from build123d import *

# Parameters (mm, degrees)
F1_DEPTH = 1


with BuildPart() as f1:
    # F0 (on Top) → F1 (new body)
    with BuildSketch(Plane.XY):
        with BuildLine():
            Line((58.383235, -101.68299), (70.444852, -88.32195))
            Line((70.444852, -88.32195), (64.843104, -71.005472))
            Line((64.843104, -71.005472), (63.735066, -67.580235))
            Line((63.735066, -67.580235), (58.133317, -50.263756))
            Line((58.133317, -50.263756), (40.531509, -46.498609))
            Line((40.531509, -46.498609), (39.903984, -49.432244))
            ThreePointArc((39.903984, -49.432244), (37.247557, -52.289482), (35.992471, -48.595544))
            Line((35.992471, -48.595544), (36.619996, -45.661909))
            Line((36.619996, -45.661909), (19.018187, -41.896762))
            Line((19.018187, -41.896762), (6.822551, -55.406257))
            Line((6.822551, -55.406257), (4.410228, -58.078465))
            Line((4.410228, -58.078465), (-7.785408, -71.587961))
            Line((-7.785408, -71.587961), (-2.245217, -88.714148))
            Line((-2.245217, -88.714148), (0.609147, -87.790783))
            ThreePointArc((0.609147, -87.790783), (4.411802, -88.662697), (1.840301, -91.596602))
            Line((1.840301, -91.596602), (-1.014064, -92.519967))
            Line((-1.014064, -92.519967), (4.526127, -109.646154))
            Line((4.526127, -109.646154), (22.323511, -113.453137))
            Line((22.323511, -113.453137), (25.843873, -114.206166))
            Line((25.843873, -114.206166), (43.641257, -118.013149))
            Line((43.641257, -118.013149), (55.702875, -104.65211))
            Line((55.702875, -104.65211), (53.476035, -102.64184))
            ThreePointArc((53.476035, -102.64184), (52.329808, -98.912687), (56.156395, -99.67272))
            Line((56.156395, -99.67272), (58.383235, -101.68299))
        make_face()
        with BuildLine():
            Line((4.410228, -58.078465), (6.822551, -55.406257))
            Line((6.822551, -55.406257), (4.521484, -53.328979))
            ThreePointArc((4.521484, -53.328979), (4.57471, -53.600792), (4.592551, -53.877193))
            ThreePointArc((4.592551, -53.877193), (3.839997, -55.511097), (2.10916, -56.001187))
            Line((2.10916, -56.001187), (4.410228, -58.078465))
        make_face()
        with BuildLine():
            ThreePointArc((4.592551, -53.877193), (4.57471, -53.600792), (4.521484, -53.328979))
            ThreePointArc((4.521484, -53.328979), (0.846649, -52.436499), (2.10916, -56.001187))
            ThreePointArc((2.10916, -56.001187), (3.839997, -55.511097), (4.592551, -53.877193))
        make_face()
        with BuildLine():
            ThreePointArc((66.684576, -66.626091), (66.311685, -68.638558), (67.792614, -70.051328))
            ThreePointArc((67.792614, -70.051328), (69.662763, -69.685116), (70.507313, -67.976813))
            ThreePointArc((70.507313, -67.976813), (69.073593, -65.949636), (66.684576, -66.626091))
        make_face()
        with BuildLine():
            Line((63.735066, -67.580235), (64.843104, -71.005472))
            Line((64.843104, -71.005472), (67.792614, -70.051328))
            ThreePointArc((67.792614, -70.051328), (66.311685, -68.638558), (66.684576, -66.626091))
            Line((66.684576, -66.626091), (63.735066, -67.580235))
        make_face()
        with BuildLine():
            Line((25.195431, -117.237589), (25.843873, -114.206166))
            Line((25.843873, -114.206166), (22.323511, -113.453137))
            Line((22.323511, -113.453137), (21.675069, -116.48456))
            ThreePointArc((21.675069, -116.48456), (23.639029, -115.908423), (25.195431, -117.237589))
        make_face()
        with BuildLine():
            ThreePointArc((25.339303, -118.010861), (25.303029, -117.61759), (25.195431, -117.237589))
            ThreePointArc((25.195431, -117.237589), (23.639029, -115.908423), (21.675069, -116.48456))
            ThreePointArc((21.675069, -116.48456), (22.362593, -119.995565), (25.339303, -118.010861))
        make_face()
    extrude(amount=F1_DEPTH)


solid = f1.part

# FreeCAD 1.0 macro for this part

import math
import FreeCAD as App
import Part
import Sketcher

V = App.Vector

doc = App.newDocument("Part")
body = doc.addObject("PartDesign::Body", "Body")

sketch1 = body.newObject("Sketcher::SketchObject", "Sketch")
sketch1.AttachmentSupport = (doc.getObject("XY_Plane"), [""])
sketch1.MapMode = "FlatFace"
sketch1.addGeometry([
    Part.LineSegment(V(58.4, -101.7, 0), V(70.4, -88.3, 0)),
    Part.LineSegment(V(70.4, -88.3, 0), V(64.8, -71, 0)),
    Part.LineSegment(V(64.8, -71, 0), V(67.8, -70.1, 0)),
    Part.ArcOfCircle(Part.Circle(V(68.4, -68, 0), V(0, 0, 1), 2.1), math.radians(-105), math.radians(0)),
    Part.ArcOfCircle(Part.Circle(V(68.4, -68, 0), V(0, 0, 1), 2.1), math.radians(0), math.radians(141)),
    Part.LineSegment(V(66.7, -66.6, 0), V(63.7, -67.6, 0)),
    Part.LineSegment(V(63.7, -67.6, 0), V(58.1, -50.3, 0)),
    Part.LineSegment(V(58.1, -50.3, 0), V(40.5, -46.5, 0)),
    Part.LineSegment(V(40.5, -46.5, 0), V(39.9, -49.4, 0)),
    Part.ArcOfCircle(Part.Circle(V(37.7, -50.1, 0), V(0, 0, 1), 2.3), math.radians(140), math.radians(376)),
    Part.LineSegment(V(36, -48.6, 0), V(36.6, -45.7, 0)),
    Part.LineSegment(V(36.6, -45.7, 0), V(19, -41.9, 0)),
    Part.LineSegment(V(19, -41.9, 0), V(6.8, -55.4, 0)),
    Part.LineSegment(V(6.8, -55.4, 0), V(4.5, -53.3, 0)),
    Part.ArcOfCircle(Part.Circle(V(2.4, -53.9, 0), V(0, 0, 1), 2.2), math.radians(15), math.radians(261)),
    Part.LineSegment(V(2.1, -56, 0), V(4.4, -58.1, 0)),
    Part.LineSegment(V(4.4, -58.1, 0), V(-7.8, -71.6, 0)),
    Part.LineSegment(V(-7.8, -71.6, 0), V(-2.2, -88.7, 0)),
    Part.LineSegment(V(-2.2, -88.7, 0), V(0.6, -87.8, 0)),
    Part.ArcOfCircle(Part.Circle(V(2.3, -89.4, 0), V(0, 0, 1), 2.3), math.radians(-100), math.radians(136)),
    Part.LineSegment(V(1.8, -91.6, 0), V(-1, -92.5, 0)),
    Part.LineSegment(V(-1, -92.5, 0), V(4.5, -109.6, 0)),
    Part.LineSegment(V(4.5, -109.6, 0), V(22.3, -113.5, 0)),
    Part.LineSegment(V(22.3, -113.5, 0), V(21.7, -116.5, 0)),
    Part.ArcOfCircle(Part.Circle(V(23.2, -118, 0), V(0, 0, 1), 2.1), math.radians(135), math.radians(360)),
    Part.ArcOfCircle(Part.Circle(V(23.2, -118, 0), V(0, 0, 1), 2.1), math.radians(0), math.radians(21)),
    Part.LineSegment(V(25.2, -117.2, 0), V(25.8, -114.2, 0)),
    Part.LineSegment(V(25.8, -114.2, 0), V(43.6, -118, 0)),
    Part.LineSegment(V(43.6, -118, 0), V(55.7, -104.7, 0)),
    Part.LineSegment(V(55.7, -104.7, 0), V(53.5, -102.6, 0)),
    Part.ArcOfCircle(Part.Circle(V(54, -100.4, 0), V(0, 0, 1), 2.3), math.radians(20), math.radians(256)),
    Part.LineSegment(V(56.2, -99.7, 0), V(58.4, -101.7, 0)),
], False)
sketch1.addConstraint([
    Sketcher.Constraint("Coincident", 0, 2, 1, 1),
    Sketcher.Constraint("Coincident", 1, 2, 2, 1),
    Sketcher.Constraint("Coincident", 2, 2, 3, 1),
    Sketcher.Constraint("Tangent", 3, 2, 4, 1),
    Sketcher.Constraint("Coincident", 4, 2, 5, 1),
    Sketcher.Constraint("Coincident", 5, 2, 6, 1),
    Sketcher.Constraint("Coincident", 6, 2, 7, 1),
    Sketcher.Constraint("Coincident", 7, 2, 8, 1),
    Sketcher.Constraint("Coincident", 8, 2, 9, 2),
    Sketcher.Constraint("Coincident", 9, 1, 10, 1),
    Sketcher.Constraint("Coincident", 10, 2, 11, 1),
    Sketcher.Constraint("Coincident", 11, 2, 12, 1),
    Sketcher.Constraint("Coincident", 12, 2, 13, 1),
    Sketcher.Constraint("Coincident", 13, 2, 14, 1),
    Sketcher.Constraint("Coincident", 14, 2, 15, 1),
    Sketcher.Constraint("Coincident", 15, 2, 16, 1),
    Sketcher.Constraint("Coincident", 16, 2, 17, 1),
    Sketcher.Constraint("Coincident", 17, 2, 18, 1),
    Sketcher.Constraint("Coincident", 18, 2, 19, 2),
    Sketcher.Constraint("Coincident", 19, 1, 20, 1),
    Sketcher.Constraint("Coincident", 20, 2, 21, 1),
    Sketcher.Constraint("Coincident", 21, 2, 22, 1),
    Sketcher.Constraint("Coincident", 22, 2, 23, 1),
    Sketcher.Constraint("Coincident", 23, 2, 24, 1),
    Sketcher.Constraint("Tangent", 24, 2, 25, 1),
    Sketcher.Constraint("Coincident", 25, 2, 26, 1),
    Sketcher.Constraint("Coincident", 26, 2, 27, 1),
    Sketcher.Constraint("Coincident", 27, 2, 28, 1),
    Sketcher.Constraint("Coincident", 28, 2, 29, 1),
    Sketcher.Constraint("Coincident", 29, 2, 30, 2),
    Sketcher.Constraint("Coincident", 30, 1, 31, 1),
    Sketcher.Constraint("Coincident", 31, 2, 0, 1),
    Sketcher.Constraint("Equal", 3, 4),
    Sketcher.Constraint("Equal", 4, 14),
    Sketcher.Constraint("Equal", 9, 19),
    Sketcher.Constraint("Equal", 14, 24),
    Sketcher.Constraint("Equal", 24, 25),
    Sketcher.Constraint("Equal", 19, 30),
    Sketcher.Constraint("Perpendicular", 1, 2),
    Sketcher.Constraint("Parallel", 2, 5),
    Sketcher.Constraint("Perpendicular", 5, 6),
    Sketcher.Constraint("Perpendicular", 7, 8),
    Sketcher.Constraint("Parallel", 8, 10),
    Sketcher.Constraint("Perpendicular", 10, 11),
    Sketcher.Constraint("Parallel", 0, 12),
    Sketcher.Constraint("Perpendicular", 12, 13),
    Sketcher.Constraint("Parallel", 13, 15),
    Sketcher.Constraint("Perpendicular", 15, 16),
    Sketcher.Constraint("Parallel", 6, 17),
    Sketcher.Constraint("Perpendicular", 17, 18),
    Sketcher.Constraint("Parallel", 18, 20),
    Sketcher.Constraint("Perpendicular", 20, 21),
    Sketcher.Constraint("Parallel", 11, 22),
    Sketcher.Constraint("Perpendicular", 22, 23),
    Sketcher.Constraint("Parallel", 23, 26),
    Sketcher.Constraint("Perpendicular", 26, 27),
    Sketcher.Constraint("Parallel", 16, 28),
    Sketcher.Constraint("Perpendicular", 28, 29),
    Sketcher.Constraint("Parallel", 29, 31),
    Sketcher.Constraint("Horizontal", 4, 3, 3, 2),
    Sketcher.Constraint("Horizontal", 25, 3, 24, 2),
    Sketcher.Constraint("Equal", 2, 5),
    Sketcher.Constraint("Equal", 1, 6),
    Sketcher.Constraint("Equal", 0, 7),
    Sketcher.Constraint("Equal", 8, 10),
    Sketcher.Constraint("Equal", 7, 11),
    Sketcher.Constraint("Equal", 6, 12),
    Sketcher.Constraint("Equal", 5, 13),
    Sketcher.Constraint("Equal", 13, 15),
    Sketcher.Constraint("Equal", 12, 16),
    Sketcher.Constraint("Equal", 11, 17),
    Sketcher.Constraint("Equal", 10, 18),
    Sketcher.Constraint("Equal", 18, 20),
    Sketcher.Constraint("Equal", 17, 21),
    Sketcher.Constraint("Equal", 16, 22),
    Sketcher.Constraint("Equal", 15, 23),
    Sketcher.Constraint("Equal", 23, 26),
    Sketcher.Constraint("Equal", 22, 27),
    Sketcher.Constraint("Equal", 21, 28),
    Sketcher.Constraint("Equal", 20, 29),
    Sketcher.Constraint("Equal", 29, 31),
    Sketcher.Constraint("Radius", 3, 2.15),
    Sketcher.Constraint("Distance", 0, 18.0),
    Sketcher.Constraint("Distance", 8, 3.0),
    Sketcher.Constraint("Distance", 1, 18.2),
    Sketcher.Constraint("Distance", 2, 3.1),
    Sketcher.Constraint("DistanceX", 14, 3, 12, 2, 4.38),
    Sketcher.Constraint("Radius", 9, 2.271915),
    Sketcher.Constraint("DistanceY", 20, 2, 19, 3, 3.158001),
    Sketcher.Constraint("DistanceX", 26, 2, 28, 2, 29.859002),
    Sketcher.Constraint("DistanceX", -1, 1, 19, 1, 1.840301),
    Sketcher.Constraint("DistanceX", 25, 3, 30, 3, 30.8269),
    Sketcher.Constraint("DistanceX", 30, 3, 1, 2, 10.826899),
    Sketcher.Constraint("DistanceX", 2, 2, 3, 3, 0.564699),
    Sketcher.Constraint("DistanceX", 9, 3, 8, 2, 2.1812),
    Sketcher.Constraint("DistanceY", 8, 2, 9, 1, 0.8367),
    Sketcher.Constraint("DistanceY", 24, 3, 23, 2, 1.526301),
    Sketcher.Constraint("DistanceX", 29, 2, 31, 2, 4.9072),
    Sketcher.Constraint("DistanceY", 4, 3, -1, 1, 67.976812),
    Sketcher.Constraint("DistanceX", -1, 1, 14, 3, 2.442551),
    Sketcher.Constraint("DistanceY", 24, 3, -1, 1, 118.010861),
    Sketcher.Constraint("DistanceX", -1, 1, 0, 2, 70.444852),
])
pad1 = body.newObject("PartDesign::Pad", "Pad")
pad1.Profile = sketch1
pad1.Length = 1

doc.recompute()
